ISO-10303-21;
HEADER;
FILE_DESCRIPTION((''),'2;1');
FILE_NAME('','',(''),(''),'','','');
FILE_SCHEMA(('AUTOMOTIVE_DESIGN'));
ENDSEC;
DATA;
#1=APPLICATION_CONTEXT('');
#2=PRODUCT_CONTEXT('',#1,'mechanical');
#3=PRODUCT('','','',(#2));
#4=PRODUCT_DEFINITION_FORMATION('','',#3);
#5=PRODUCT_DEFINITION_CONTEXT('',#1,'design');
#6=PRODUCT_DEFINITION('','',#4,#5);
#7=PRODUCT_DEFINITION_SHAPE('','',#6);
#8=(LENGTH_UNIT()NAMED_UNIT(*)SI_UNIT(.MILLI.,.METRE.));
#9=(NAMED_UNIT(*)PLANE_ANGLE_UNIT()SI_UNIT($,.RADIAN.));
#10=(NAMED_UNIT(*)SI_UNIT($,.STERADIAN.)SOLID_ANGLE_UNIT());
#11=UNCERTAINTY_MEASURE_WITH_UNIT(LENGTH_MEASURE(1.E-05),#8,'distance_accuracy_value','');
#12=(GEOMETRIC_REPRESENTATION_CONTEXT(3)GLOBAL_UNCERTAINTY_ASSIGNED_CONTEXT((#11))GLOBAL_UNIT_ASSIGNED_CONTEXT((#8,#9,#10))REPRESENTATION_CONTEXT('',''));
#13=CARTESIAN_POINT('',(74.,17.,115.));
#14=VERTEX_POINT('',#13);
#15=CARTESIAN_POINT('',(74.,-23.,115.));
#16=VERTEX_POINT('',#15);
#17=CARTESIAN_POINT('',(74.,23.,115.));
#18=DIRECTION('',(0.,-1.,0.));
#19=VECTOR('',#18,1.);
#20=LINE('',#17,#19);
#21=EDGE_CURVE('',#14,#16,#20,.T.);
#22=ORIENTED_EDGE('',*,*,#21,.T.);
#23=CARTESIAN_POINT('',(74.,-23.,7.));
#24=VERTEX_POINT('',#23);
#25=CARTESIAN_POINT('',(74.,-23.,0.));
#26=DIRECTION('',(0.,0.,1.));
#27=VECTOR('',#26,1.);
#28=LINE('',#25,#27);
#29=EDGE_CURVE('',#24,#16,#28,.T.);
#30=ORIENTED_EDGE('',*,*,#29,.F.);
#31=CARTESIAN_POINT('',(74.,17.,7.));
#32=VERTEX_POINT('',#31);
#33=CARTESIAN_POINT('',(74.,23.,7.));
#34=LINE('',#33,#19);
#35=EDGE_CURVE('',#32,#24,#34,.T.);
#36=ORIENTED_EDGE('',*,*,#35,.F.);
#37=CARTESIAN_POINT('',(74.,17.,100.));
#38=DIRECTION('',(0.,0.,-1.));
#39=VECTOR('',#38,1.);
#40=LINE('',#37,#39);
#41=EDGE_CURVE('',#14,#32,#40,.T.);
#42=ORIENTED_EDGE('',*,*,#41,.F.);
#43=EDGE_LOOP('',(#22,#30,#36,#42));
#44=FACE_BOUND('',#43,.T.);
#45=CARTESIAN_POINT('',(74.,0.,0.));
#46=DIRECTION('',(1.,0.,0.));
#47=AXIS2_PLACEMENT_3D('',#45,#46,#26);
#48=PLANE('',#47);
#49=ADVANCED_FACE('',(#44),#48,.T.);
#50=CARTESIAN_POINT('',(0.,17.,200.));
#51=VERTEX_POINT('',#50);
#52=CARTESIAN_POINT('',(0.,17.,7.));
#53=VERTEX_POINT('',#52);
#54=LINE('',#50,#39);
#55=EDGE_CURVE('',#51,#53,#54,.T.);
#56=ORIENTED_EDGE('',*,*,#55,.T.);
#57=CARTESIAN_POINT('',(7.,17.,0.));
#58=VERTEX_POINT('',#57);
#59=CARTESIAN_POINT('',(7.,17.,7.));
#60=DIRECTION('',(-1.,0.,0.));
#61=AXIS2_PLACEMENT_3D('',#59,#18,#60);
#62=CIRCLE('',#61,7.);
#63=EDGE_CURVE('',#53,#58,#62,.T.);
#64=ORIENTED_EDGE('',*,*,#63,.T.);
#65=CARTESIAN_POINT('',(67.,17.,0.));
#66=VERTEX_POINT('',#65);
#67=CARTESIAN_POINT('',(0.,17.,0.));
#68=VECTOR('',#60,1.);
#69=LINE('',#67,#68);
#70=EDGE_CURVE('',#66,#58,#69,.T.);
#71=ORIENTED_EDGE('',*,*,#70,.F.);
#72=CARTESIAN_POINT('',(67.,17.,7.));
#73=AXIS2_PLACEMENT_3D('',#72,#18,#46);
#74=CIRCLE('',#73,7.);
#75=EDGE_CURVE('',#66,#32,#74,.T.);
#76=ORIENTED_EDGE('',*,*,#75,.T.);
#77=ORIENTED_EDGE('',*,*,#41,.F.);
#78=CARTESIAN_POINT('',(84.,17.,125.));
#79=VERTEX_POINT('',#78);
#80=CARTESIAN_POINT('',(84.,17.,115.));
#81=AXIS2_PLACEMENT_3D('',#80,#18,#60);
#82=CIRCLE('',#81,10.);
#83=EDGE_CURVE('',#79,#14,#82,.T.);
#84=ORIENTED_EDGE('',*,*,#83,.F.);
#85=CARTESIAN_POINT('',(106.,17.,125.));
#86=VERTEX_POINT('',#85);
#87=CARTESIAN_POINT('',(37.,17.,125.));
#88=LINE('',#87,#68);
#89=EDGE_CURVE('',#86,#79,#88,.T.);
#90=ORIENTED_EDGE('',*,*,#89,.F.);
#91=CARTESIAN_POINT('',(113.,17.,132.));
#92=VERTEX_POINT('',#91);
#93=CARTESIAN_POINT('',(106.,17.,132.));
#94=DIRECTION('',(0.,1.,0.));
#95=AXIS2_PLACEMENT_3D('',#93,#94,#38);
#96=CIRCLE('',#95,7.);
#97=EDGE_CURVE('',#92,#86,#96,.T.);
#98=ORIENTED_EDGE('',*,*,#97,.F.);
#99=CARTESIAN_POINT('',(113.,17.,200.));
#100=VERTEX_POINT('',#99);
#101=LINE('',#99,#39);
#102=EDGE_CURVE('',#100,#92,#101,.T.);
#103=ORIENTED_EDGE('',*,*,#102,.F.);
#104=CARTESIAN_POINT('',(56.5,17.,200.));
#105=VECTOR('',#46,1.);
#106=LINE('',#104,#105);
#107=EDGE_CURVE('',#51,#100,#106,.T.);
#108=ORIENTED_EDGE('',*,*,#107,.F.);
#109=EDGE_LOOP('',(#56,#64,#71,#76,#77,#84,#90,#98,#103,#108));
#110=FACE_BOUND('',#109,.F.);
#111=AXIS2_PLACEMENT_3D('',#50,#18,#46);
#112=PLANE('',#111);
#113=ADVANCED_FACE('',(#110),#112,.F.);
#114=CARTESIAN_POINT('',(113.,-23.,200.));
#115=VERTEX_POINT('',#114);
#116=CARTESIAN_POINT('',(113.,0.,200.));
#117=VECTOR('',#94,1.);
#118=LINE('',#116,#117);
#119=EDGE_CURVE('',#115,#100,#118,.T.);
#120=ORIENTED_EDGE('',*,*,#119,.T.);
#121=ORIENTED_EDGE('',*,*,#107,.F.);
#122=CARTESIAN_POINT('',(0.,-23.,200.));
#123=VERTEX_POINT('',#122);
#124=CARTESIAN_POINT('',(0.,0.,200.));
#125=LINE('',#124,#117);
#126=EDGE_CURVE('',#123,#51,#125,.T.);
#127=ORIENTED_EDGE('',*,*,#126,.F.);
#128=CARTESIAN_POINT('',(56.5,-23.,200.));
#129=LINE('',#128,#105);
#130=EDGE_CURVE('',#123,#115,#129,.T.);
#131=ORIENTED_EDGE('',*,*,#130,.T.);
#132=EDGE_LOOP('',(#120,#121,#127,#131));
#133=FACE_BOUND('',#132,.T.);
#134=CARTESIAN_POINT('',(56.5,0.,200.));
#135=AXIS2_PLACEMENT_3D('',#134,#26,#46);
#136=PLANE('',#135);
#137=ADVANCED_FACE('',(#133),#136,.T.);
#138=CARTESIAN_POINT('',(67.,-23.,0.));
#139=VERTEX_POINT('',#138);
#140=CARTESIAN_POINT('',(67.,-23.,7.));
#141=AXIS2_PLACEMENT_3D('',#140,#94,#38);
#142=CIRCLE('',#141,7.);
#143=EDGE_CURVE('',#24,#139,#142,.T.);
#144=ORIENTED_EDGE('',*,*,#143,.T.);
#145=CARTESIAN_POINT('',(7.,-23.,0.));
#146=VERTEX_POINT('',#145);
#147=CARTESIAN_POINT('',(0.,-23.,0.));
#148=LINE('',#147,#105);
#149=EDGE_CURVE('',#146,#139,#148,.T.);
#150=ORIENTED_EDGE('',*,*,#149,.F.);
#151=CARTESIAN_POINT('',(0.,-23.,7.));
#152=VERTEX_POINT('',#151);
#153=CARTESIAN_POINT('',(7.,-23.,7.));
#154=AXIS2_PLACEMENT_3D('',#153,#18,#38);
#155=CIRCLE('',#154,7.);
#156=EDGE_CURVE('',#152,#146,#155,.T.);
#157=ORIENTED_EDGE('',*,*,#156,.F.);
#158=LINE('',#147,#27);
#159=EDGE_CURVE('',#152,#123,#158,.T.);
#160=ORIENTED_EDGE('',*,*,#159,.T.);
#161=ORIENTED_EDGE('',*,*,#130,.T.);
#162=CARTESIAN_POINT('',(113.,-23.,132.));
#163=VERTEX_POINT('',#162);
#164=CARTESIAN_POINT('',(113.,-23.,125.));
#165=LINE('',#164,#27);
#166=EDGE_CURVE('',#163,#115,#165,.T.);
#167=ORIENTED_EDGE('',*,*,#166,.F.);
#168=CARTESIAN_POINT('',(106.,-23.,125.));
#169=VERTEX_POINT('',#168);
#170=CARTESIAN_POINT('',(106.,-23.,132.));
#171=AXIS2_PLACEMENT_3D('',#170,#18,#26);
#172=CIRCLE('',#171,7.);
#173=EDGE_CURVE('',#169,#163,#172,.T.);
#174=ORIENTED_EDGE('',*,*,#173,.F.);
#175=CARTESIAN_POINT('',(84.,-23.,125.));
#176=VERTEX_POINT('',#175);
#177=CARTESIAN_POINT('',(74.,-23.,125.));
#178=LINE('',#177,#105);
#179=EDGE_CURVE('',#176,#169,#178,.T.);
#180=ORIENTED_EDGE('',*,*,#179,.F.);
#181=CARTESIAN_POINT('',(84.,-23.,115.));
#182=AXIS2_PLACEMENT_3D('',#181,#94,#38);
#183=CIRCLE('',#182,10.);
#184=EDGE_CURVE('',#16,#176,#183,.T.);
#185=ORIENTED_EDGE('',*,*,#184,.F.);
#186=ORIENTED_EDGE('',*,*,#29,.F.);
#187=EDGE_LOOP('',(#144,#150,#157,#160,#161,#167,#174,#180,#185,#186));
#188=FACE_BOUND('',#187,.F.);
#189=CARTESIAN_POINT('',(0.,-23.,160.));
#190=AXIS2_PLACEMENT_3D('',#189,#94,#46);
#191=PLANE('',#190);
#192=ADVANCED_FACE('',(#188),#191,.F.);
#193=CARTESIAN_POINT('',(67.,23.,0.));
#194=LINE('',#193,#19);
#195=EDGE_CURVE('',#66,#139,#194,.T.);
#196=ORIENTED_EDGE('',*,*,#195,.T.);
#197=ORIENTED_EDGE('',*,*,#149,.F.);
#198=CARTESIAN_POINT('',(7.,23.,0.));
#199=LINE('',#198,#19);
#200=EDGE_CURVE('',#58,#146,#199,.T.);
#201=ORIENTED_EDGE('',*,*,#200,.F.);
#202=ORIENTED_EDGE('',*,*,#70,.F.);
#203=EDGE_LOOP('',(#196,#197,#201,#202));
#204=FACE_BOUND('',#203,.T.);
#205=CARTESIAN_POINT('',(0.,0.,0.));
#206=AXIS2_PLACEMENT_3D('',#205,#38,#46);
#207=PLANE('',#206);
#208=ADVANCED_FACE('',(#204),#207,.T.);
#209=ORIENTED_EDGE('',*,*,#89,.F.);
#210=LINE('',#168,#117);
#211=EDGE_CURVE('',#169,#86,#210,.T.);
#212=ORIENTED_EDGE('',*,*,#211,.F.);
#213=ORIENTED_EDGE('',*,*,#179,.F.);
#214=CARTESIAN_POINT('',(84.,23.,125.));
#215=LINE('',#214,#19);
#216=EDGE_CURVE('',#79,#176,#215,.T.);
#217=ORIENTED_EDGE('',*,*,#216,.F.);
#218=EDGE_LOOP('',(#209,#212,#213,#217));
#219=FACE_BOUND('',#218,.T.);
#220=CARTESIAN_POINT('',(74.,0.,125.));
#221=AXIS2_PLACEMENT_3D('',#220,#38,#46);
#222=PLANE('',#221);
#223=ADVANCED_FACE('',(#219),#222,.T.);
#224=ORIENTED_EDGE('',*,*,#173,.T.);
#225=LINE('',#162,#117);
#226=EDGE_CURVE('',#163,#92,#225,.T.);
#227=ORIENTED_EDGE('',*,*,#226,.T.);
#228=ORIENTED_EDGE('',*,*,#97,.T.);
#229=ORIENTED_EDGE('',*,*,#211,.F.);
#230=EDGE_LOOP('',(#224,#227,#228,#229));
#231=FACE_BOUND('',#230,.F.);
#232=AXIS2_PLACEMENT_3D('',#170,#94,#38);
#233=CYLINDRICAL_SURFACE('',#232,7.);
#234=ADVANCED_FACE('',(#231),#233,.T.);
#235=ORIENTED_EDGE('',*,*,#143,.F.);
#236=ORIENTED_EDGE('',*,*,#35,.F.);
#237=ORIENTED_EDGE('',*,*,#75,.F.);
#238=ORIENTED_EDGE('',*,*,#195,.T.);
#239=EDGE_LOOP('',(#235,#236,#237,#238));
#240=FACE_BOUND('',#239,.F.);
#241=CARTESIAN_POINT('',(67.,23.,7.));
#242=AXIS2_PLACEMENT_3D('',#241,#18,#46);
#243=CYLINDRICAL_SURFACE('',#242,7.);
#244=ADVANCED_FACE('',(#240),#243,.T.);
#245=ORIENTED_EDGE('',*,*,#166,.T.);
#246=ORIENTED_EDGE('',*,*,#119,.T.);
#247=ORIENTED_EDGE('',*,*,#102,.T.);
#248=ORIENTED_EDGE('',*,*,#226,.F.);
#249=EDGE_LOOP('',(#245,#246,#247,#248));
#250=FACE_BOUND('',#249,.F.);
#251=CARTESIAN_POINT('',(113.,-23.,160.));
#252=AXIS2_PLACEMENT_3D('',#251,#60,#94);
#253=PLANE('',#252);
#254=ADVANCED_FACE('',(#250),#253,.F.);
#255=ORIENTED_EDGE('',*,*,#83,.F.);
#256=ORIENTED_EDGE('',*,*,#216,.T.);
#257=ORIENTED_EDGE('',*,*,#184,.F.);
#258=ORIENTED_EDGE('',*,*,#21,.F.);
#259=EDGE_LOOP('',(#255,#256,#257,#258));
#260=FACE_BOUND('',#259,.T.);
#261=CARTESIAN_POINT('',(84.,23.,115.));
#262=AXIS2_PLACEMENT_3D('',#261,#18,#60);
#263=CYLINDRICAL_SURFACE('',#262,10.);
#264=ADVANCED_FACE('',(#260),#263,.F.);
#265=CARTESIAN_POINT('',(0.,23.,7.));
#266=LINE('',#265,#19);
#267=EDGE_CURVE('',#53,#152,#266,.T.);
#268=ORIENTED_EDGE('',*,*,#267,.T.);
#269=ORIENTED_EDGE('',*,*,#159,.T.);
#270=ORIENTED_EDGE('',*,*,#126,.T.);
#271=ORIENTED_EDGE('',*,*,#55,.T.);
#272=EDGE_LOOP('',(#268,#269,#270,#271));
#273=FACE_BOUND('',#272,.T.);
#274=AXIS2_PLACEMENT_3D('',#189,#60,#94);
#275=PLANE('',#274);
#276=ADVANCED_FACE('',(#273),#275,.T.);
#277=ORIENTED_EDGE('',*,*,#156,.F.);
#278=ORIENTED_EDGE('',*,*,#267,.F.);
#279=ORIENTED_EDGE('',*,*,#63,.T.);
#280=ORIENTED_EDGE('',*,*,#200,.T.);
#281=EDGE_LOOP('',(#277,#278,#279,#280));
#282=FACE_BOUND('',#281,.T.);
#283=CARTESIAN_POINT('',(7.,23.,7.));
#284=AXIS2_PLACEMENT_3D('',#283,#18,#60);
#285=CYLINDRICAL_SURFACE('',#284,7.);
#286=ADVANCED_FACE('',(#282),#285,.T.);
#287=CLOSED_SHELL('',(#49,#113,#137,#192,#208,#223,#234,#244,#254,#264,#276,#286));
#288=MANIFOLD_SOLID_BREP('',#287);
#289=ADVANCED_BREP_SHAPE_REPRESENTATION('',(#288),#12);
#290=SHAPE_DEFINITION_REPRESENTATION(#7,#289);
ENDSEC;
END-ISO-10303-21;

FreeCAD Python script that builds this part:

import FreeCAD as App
import Part
import Sketcher


def edges_at(feature, points):
    """Names of the edges that pass closest to the given points."""
    edges = feature.Shape.Edges
    near = lambda p: min(range(len(edges)), key=lambda i: edges[i].distToShape(Part.Vertex(*p))[0])
    return sorted({f"Edge{near(p) + 1}" for p in points})


def add_polygon(sketch, points):
    """Adds a closed chain of lines whose ends are joined by coincident constraints."""
    first, n = sketch.GeometryCount, len(points)
    for a, b in zip(points, points[1:] + points[:1]):
        sketch.addGeometry(Part.LineSegment(App.Vector(*a, 0), App.Vector(*b, 0)), False)
    for i in range(n):
        sketch.addConstraint(Sketcher.Constraint("Coincident", first + i, 2, first + (i + 1) % n, 1))

doc = App.newDocument("Part")
body = doc.addObject("PartDesign::Body", "Body")

# Sketch on XZ plane
sketch1 = body.newObject("Sketcher::SketchObject", "Sketch")
sketch1.AttachmentSupport = (doc.getObject("XZ_Plane"), [""])
sketch1.MapMode = "FlatFace"
add_polygon(sketch1, [(0, 160), (0, 0), (74, 0), (74, 125), (113, 125), (113, 160)])  # lines 0-5
sketch1.addConstraint([
    Sketcher.Constraint("Vertical", 0),
    Sketcher.Constraint("Horizontal", 1),
    Sketcher.Constraint("Vertical", 2),
    Sketcher.Constraint("Horizontal", 3),
    Sketcher.Constraint("Vertical", 4),
    Sketcher.Constraint("Horizontal", 5),
    Sketcher.Constraint("Coincident", 0, 2, -1, 1),
    Sketcher.Constraint("DistanceX", 1, 1, 1, 2, 74.0),
    Sketcher.Constraint("DistanceX", 3, 1, 3, 2, 39.0),
    Sketcher.Constraint("DistanceY", 0, 2, 0, 1, 160.0),
    Sketcher.Constraint("DistanceY", 2, 1, 2, 2, 125.0),
])
pad1 = body.newObject("PartDesign::Pad", "Pad")
pad1.Profile = sketch1
pad1.Length = 46
pad1.Midplane = True

# Sketch on XY plane
sketch2 = body.newObject("Sketcher::SketchObject", "Sketch001")
sketch2.AttachmentSupport = (doc.getObject("XY_Plane"), [""])
sketch2.MapMode = "FlatFace"
sketch2.AttachmentOffset = App.Placement(App.Vector(0, 0, 160), App.Rotation())
add_polygon(sketch2, [(0, 23), (0, -23), (113, -23), (113, 23)])  # lines 0-3
sketch2.addConstraint([
    Sketcher.Constraint("Vertical", 0),
    Sketcher.Constraint("Horizontal", 1),
    Sketcher.Constraint("Vertical", 2),
    Sketcher.Constraint("Horizontal", 3),
    Sketcher.Constraint("Symmetric", 0, 2, 3, 2, -1, 1),
    Sketcher.Constraint("DistanceX", 1, 1, 1, 2, 113.0),
    Sketcher.Constraint("DistanceY", 0, 2, 0, 1, 46.0),
])
pad2 = body.newObject("PartDesign::Pad", "Pad001")
pad2.Profile = sketch2
pad2.Length = 40
doc.recompute()

fillet = body.newObject("PartDesign::Fillet", "Fillet")
fillet.Base = (pad2, edges_at(pad2, [(74, 0, 0), (0, 0, 0), (113, 0, 125)]))
fillet.Radius = 7
doc.recompute()

fillet2 = body.newObject("PartDesign::Fillet", "Fillet001")
fillet2.Base = (fillet, edges_at(fillet, [(74, 0, 125)]))
fillet2.Radius = 10

# Sketch on XY plane
sketch3 = body.newObject("Sketcher::SketchObject", "Sketch002")
sketch3.AttachmentSupport = (doc.getObject("XY_Plane"), [""])
sketch3.MapMode = "FlatFace"
sketch3.AttachmentOffset = App.Placement(App.Vector(0, 0, 200), App.Rotation())
add_polygon(sketch3, [(0, 23), (0, 17), (113, 17), (113, 23)])  # lines 0-3
sketch3.addConstraint([
    Sketcher.Constraint("Vertical", 0),
    Sketcher.Constraint("Horizontal", 1),
    Sketcher.Constraint("Vertical", 2),
    Sketcher.Constraint("Horizontal", 3),
    Sketcher.Constraint("PointOnObject", 0, 2, -2),
    Sketcher.Constraint("DistanceX", 1, 1, 1, 2, 113.0),
    Sketcher.Constraint("DistanceY", 0, 2, 0, 1, 6.0),
    Sketcher.Constraint("DistanceY", -1, 1, 0, 2, 17.0),
])
pocket1 = body.newObject("PartDesign::Pocket", "Pocket")
pocket1.Profile = sketch3
pocket1.Type = "ThroughAll"

doc.recompute()
